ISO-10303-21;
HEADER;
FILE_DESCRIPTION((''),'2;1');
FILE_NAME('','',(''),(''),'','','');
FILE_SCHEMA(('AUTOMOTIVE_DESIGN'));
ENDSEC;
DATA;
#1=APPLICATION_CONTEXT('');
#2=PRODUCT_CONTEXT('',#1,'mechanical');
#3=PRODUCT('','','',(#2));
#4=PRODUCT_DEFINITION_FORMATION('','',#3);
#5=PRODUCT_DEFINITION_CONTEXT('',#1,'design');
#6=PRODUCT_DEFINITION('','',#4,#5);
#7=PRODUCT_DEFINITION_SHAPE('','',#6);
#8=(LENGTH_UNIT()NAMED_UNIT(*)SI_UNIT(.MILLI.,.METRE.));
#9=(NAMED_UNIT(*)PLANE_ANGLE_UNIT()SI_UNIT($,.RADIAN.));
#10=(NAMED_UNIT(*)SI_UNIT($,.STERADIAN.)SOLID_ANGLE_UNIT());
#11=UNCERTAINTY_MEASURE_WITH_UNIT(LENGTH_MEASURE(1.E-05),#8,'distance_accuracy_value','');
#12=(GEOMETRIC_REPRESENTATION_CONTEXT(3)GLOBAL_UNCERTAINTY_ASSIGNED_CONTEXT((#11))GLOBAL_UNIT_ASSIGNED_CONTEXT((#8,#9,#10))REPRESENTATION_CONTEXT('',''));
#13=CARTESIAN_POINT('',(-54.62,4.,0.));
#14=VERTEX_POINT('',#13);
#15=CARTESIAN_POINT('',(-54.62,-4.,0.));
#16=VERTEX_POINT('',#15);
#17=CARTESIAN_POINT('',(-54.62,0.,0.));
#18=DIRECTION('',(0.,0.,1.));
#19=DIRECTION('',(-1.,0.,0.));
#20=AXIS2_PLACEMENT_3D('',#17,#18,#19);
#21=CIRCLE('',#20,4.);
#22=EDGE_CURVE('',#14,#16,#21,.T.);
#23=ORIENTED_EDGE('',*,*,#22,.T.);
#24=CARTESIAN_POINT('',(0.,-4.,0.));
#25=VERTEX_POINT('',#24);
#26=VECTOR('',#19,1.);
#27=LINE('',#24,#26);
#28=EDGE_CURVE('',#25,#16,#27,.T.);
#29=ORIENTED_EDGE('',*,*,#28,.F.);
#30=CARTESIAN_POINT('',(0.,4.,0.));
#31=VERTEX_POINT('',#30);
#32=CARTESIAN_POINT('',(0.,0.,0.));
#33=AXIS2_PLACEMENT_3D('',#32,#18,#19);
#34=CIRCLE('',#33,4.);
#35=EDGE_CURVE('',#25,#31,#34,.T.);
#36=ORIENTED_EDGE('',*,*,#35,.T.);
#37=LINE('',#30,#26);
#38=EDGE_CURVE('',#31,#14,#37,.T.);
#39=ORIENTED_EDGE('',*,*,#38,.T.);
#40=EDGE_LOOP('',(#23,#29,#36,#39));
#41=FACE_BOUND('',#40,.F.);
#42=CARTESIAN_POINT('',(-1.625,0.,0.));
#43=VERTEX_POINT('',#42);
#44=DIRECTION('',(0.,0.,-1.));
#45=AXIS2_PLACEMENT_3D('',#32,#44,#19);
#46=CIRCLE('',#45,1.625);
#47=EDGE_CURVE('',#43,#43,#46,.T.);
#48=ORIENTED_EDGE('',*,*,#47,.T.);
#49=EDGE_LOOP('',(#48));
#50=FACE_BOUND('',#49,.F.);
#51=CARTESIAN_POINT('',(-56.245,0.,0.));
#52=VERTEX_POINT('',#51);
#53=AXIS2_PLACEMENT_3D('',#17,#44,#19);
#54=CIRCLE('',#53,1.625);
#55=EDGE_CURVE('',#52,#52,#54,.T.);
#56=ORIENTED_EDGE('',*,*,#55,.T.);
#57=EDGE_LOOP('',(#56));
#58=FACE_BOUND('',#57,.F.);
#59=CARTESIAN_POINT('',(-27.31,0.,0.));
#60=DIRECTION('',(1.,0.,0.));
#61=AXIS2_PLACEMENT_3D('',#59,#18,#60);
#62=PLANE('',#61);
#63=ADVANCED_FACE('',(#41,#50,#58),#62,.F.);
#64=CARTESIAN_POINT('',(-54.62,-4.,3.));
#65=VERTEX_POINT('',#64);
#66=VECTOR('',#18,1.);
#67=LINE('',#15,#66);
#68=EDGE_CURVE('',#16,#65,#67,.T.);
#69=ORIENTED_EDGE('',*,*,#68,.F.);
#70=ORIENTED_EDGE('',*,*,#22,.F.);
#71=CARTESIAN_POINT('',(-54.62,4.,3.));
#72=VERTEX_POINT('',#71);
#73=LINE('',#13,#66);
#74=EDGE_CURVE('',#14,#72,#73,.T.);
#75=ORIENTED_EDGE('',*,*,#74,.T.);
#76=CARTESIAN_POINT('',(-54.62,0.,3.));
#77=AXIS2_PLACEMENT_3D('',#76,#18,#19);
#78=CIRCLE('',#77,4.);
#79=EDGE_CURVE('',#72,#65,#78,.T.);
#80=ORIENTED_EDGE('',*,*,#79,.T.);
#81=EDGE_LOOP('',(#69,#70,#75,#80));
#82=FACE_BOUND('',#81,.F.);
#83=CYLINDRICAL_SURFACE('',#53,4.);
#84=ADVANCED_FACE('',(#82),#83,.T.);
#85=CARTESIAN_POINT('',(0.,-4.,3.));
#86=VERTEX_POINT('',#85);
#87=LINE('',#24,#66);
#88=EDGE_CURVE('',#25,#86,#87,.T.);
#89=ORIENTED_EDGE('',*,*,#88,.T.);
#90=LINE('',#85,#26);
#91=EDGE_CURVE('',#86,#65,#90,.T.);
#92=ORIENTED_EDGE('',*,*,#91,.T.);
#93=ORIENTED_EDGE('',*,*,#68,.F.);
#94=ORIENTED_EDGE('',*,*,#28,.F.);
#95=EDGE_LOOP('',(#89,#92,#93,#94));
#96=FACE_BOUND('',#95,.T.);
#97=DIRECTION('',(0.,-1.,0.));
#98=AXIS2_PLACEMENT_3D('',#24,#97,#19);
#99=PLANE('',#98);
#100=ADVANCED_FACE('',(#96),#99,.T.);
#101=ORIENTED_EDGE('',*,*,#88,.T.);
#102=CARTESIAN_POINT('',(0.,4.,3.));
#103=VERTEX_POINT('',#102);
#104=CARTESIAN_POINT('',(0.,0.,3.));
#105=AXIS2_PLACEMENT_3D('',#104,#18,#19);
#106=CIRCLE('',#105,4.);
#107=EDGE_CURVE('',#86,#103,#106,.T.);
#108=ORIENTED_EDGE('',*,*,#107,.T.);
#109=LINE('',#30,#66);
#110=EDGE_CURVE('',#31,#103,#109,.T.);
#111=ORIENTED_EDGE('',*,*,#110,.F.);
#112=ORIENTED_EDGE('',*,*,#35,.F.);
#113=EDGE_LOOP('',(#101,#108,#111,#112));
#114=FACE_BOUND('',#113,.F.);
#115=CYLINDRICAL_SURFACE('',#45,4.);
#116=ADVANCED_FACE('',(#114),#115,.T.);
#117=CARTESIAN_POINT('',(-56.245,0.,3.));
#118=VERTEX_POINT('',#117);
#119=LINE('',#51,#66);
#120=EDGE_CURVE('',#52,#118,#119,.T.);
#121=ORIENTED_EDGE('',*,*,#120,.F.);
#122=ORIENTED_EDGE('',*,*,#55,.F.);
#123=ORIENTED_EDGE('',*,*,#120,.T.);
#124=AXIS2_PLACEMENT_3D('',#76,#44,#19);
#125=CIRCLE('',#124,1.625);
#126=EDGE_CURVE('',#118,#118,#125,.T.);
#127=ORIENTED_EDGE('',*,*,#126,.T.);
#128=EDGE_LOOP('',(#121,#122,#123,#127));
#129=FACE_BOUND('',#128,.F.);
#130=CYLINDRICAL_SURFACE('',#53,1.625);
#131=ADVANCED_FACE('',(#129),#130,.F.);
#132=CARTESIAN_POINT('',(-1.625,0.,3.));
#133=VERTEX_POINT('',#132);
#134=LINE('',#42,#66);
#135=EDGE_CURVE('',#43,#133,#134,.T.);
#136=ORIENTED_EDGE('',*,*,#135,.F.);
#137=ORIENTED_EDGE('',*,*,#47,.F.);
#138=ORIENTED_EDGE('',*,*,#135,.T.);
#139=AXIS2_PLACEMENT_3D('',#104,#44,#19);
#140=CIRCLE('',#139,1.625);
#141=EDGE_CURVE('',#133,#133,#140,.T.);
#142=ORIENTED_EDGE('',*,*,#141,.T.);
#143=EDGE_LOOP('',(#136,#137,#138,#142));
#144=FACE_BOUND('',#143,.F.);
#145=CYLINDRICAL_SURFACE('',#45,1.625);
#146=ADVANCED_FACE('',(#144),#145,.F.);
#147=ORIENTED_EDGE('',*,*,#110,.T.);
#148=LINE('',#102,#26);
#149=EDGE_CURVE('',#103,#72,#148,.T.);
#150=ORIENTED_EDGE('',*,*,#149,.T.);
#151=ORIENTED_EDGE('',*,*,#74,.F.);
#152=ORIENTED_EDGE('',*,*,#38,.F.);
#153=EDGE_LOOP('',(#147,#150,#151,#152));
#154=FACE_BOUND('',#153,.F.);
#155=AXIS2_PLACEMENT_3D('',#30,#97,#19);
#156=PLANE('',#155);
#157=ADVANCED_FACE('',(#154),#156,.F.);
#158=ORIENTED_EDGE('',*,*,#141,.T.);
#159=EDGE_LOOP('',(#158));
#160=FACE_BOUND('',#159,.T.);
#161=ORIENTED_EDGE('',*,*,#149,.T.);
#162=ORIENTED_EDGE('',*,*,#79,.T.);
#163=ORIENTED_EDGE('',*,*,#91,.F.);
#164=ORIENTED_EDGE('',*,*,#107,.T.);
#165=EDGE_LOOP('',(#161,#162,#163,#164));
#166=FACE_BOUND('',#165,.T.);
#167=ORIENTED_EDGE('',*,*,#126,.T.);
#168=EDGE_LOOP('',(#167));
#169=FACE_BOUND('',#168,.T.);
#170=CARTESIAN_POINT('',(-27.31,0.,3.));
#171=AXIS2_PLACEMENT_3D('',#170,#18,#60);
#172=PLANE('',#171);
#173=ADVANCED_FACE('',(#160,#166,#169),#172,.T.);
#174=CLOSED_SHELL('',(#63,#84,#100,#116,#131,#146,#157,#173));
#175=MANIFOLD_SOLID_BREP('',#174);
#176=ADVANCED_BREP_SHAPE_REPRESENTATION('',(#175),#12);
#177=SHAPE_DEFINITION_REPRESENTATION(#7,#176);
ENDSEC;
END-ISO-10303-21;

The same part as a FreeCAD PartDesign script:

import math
import FreeCAD as App
import Part
import Sketcher

V = App.Vector
Q = App.Units.Quantity

doc = App.newDocument("Part")
params = doc.addObject("Spreadsheet::Sheet", "Params")
for row, (alias, value) in enumerate([
    ("sketch1_radius", "4 mm"),
    ("sketch1_diameter", "3.25 mm"),
    ("sketch1_width", "54.62 mm"),
    ("pad1_length", "3 mm"),
], start=1):
    params.set(f"A{row}", alias)
    params.set(f"B{row}", "=" + value)
    params.setAlias(f"B{row}", alias)

body = doc.addObject("PartDesign::Body", "Body")

# Sketch on XY plane
sketch1 = body.newObject("Sketcher::SketchObject", "Sketch")
sketch1.AttachmentSupport = (doc.getObject("XY_Plane"), [""])
sketch1.MapMode = "FlatFace"
sketch1.addGeometry([
    Part.LineSegment(V(-54.6, 4, 0), V(0, 4, 0)),  # 0
    Part.ArcOfCircle(Part.Circle(V(0, 0, 0), V(0, 0, 1), 4), math.radians(-90), math.radians(90)),  # 1
    Part.LineSegment(V(0, -4, 0), V(-54.6, -4, 0)),  # 2
    Part.ArcOfCircle(Part.Circle(V(-54.6, 0, 0), V(0, 0, 1), 4), math.radians(90), math.radians(270)),  # 3
    Part.Circle(V(0, 0, 0), V(0, 0, 1), 1.6),  # 4
    Part.Circle(V(-54.6, 0, 0), V(0, 0, 1), 1.6),  # 5
], False)
sketch1.addConstraint([
    Sketcher.Constraint("Tangent", 0, 2, 1, 2),
    Sketcher.Constraint("Tangent", 1, 1, 2, 1),
    Sketcher.Constraint("Tangent", 2, 2, 3, 2),
    Sketcher.Constraint("Tangent", 3, 1, 0, 1),
    Sketcher.Constraint("Horizontal", 0),
    Sketcher.Constraint("Horizontal", 2),
    Sketcher.Constraint("Coincident", 1, 3, -1, 1),
    Sketcher.Constraint("Coincident", 4, 3, -1, 1),
    Sketcher.Constraint("Coincident", 5, 3, 3, 3),
    Sketcher.Constraint("Equal", 4, 5),
    Sketcher.Constraint("Radius", 1, Q("4 mm")),
    Sketcher.Constraint("Diameter", 4, Q("3.25 mm")),
    Sketcher.Constraint("DistanceX", 0, 1, 0, 2, Q("54.62 mm")),
])
sketch1.setExpression("Constraints[10]", "Params.sketch1_radius")
sketch1.setExpression("Constraints[11]", "Params.sketch1_diameter")
sketch1.setExpression("Constraints[12]", "Params.sketch1_width")
pad1 = body.newObject("PartDesign::Pad", "Pad")
pad1.Profile = sketch1
pad1.setExpression("Length", "Params.pad1_length")

doc.recompute()
